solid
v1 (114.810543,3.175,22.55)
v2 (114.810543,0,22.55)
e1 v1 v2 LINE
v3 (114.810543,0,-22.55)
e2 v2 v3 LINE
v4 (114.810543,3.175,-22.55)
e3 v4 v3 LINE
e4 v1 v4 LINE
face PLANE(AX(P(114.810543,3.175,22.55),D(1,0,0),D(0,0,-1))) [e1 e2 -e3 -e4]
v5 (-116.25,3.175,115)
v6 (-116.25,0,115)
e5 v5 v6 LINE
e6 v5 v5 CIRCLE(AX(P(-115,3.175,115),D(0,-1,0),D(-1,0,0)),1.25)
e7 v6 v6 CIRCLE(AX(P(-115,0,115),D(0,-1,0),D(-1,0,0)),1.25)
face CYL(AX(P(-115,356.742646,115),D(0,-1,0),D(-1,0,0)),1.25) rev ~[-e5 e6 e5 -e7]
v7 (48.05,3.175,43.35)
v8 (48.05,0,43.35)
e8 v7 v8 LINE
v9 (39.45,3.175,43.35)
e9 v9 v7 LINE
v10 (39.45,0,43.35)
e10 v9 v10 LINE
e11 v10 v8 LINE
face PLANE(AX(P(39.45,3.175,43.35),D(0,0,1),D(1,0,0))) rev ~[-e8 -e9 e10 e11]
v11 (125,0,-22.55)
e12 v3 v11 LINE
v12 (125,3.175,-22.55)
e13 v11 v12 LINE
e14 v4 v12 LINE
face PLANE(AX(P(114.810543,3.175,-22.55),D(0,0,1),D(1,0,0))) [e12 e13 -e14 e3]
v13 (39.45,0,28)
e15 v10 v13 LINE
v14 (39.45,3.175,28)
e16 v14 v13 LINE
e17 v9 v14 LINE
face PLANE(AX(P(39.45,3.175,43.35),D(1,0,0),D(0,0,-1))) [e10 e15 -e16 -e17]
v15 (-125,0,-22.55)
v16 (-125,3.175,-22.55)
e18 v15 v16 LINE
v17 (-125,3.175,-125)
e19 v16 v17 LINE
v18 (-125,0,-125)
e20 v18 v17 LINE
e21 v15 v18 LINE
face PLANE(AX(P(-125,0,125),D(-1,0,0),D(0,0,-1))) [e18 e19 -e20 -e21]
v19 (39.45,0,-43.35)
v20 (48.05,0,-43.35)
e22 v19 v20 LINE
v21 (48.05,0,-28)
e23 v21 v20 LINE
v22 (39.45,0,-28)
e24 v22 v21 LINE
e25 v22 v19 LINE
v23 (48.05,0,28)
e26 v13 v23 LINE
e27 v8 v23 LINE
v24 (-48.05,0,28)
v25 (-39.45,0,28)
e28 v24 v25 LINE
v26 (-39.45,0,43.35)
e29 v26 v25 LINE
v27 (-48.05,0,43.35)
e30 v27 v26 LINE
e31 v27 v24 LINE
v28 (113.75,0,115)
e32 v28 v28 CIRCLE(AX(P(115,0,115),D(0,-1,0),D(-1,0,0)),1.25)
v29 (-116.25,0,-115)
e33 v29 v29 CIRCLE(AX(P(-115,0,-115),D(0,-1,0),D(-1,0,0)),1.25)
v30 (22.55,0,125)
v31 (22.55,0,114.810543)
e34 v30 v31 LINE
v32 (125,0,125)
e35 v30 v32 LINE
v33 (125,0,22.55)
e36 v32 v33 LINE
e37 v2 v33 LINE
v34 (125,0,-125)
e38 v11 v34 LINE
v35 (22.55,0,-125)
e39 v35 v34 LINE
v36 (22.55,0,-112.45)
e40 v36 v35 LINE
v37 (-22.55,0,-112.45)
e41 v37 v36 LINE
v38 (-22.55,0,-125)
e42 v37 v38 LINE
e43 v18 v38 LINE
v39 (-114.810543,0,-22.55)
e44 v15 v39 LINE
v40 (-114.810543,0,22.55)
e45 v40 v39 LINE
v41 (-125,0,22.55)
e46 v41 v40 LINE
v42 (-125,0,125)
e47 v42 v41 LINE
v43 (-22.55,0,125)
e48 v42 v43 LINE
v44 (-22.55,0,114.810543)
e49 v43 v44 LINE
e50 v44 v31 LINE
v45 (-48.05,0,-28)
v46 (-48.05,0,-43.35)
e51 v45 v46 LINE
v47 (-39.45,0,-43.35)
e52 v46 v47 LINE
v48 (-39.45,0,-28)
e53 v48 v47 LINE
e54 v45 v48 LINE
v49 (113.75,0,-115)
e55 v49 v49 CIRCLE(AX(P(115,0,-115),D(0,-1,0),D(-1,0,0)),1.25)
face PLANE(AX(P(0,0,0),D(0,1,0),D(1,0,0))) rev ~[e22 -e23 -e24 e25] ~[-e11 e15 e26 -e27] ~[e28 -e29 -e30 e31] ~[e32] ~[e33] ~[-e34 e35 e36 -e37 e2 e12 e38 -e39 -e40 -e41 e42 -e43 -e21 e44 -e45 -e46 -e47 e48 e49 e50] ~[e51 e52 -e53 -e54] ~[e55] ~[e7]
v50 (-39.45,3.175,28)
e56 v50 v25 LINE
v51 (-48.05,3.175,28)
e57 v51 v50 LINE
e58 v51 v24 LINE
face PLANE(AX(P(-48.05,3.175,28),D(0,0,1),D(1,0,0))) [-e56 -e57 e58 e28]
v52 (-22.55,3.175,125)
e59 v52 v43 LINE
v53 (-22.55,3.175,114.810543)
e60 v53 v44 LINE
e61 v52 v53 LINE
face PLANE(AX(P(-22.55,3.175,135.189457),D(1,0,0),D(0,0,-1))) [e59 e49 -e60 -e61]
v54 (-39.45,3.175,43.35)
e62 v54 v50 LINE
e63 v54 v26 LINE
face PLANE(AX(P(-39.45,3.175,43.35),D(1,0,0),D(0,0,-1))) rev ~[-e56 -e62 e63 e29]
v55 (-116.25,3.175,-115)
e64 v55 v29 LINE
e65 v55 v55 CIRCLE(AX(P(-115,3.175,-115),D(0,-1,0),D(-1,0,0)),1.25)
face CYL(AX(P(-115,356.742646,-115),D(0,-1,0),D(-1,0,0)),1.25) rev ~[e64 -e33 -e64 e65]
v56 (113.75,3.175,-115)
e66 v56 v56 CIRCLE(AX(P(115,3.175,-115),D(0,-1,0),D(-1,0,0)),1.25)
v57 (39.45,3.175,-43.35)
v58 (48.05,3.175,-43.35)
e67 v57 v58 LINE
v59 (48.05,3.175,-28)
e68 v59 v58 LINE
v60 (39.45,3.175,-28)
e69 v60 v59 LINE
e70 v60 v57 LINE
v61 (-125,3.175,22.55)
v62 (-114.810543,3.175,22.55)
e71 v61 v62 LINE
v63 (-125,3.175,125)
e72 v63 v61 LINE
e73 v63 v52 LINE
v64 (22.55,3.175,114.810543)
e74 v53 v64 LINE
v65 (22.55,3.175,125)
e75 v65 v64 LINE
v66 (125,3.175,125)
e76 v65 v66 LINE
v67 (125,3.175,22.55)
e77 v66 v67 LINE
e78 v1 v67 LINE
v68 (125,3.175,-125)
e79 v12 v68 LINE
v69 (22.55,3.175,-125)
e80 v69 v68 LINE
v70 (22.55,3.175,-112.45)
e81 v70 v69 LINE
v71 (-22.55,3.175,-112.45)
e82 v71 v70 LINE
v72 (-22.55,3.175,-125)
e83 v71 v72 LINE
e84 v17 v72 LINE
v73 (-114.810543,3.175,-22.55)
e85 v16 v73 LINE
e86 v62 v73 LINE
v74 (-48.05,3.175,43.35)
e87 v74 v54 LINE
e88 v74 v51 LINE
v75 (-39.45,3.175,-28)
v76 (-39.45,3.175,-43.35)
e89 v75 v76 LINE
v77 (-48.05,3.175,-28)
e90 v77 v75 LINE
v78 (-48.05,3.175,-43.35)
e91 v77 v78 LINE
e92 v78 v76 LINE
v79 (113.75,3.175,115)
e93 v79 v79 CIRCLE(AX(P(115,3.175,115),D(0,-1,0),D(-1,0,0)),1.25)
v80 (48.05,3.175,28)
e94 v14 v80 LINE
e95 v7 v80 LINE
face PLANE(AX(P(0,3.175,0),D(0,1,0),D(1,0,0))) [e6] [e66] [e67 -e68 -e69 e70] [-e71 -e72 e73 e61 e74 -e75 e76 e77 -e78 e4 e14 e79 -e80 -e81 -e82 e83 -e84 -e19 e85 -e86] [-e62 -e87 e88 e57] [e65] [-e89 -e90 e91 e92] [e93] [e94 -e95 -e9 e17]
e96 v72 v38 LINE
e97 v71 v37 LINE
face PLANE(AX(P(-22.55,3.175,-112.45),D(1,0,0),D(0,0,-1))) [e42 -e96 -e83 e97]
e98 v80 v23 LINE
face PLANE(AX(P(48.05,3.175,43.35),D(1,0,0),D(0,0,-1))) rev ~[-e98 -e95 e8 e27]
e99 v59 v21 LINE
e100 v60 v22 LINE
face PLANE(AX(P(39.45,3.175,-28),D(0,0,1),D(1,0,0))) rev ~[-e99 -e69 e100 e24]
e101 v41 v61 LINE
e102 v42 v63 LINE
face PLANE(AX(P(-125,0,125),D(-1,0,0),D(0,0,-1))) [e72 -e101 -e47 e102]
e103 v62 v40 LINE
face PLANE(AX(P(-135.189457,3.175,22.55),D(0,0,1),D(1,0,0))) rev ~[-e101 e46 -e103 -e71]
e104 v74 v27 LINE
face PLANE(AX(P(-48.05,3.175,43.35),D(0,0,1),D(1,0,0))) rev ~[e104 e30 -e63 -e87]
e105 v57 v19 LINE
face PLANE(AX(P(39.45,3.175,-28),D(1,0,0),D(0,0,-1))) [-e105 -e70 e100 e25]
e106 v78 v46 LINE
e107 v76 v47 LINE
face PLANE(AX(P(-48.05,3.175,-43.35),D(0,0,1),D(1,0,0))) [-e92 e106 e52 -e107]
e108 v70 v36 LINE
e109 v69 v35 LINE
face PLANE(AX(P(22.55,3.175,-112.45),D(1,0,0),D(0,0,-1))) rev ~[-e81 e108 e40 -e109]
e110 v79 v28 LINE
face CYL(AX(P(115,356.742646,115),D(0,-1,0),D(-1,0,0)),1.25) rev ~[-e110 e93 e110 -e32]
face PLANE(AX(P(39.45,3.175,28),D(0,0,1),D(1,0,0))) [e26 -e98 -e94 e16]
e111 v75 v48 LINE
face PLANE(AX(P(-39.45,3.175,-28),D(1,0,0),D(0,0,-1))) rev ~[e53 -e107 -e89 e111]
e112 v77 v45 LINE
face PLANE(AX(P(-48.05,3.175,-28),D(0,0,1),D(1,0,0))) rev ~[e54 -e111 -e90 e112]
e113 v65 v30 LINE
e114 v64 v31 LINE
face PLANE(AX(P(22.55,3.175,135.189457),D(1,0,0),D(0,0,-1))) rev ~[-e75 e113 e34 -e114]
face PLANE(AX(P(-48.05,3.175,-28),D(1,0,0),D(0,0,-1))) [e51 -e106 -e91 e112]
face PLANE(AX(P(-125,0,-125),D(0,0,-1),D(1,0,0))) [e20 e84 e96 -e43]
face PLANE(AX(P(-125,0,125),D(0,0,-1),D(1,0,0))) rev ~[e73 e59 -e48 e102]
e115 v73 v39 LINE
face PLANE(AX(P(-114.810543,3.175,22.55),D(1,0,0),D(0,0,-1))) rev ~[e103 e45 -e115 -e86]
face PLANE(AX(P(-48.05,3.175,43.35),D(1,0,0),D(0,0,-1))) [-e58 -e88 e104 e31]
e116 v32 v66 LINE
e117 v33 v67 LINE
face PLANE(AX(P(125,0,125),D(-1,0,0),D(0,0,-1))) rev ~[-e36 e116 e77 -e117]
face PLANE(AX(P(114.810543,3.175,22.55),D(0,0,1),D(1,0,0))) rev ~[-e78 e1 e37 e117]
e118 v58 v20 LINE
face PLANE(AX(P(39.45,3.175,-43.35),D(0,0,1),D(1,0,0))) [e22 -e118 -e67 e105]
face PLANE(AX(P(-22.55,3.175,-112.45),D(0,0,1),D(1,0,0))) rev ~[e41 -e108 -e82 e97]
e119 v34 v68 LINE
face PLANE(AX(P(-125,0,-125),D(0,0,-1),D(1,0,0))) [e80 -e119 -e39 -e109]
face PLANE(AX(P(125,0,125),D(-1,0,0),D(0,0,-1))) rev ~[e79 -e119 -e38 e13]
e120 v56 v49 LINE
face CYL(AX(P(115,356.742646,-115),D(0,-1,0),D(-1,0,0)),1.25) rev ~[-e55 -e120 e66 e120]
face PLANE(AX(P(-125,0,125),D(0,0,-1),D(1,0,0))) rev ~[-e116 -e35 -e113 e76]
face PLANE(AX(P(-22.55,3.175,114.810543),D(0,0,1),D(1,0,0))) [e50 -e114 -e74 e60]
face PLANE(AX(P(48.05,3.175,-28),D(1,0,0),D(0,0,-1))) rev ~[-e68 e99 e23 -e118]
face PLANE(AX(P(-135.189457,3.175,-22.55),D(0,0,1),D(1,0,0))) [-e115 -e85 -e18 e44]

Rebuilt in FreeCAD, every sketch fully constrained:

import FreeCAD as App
import Part
import Sketcher
from FreeCAD import Vector

doc = App.newDocument("Part")
body = doc.addObject("PartDesign::Body", "Body")

# Sketch on XZ plane
sketch1 = doc.addObject("Sketcher::SketchObject", "Sketch")
body.addObject(sketch1)
sketch1.AttachmentSupport = (doc.XZ_Plane, [""])
sketch1.MapMode = "FlatFace"
sketch1.addGeometry(Part.LineSegment(Vector(-125, -125, 0), Vector(-125, 125, 0)), False)
sketch1.addGeometry(Part.LineSegment(Vector(-125, 125, 0), Vector(125, 125, 0)), False)
sketch1.addGeometry(Part.LineSegment(Vector(125, 125, 0), Vector(125, -125, 0)), False)
sketch1.addGeometry(Part.LineSegment(Vector(125, -125, 0), Vector(-125, -125, 0)), False)
sketch1.addConstraint(Sketcher.Constraint("Coincident", 0, 2, 1, 1))
sketch1.addConstraint(Sketcher.Constraint("Coincident", 1, 2, 2, 1))
sketch1.addConstraint(Sketcher.Constraint("Coincident", 2, 2, 3, 1))
sketch1.addConstraint(Sketcher.Constraint("Coincident", 3, 2, 0, 1))
sketch1.addConstraint(Sketcher.Constraint("Vertical", 0))
sketch1.addConstraint(Sketcher.Constraint("Horizontal", 1))
sketch1.addConstraint(Sketcher.Constraint("Vertical", 2))
sketch1.addConstraint(Sketcher.Constraint("Horizontal", 3))
sketch1.addConstraint(Sketcher.Constraint("Symmetric", 0, 2, 2, 2, -1, 1))
sketch1.addConstraint(Sketcher.Constraint("Equal", 3, 0))
sketch1.addConstraint(Sketcher.Constraint("DistanceX", 1, 1, 1, 2, 250.0))
pad1 = doc.addObject("PartDesign::Pad", "Pad")
body.addObject(pad1)
pad1.Profile = sketch1
pad1.Length = 3.175
pad1.Reversed = True

# Sketch on XZ plane
sketch2 = doc.addObject("Sketcher::SketchObject", "Sketch001")
body.addObject(sketch2)
sketch2.AttachmentSupport = (doc.XZ_Plane, [""])
sketch2.MapMode = "FlatFace"
sketch2.AttachmentOffset = App.Placement(Vector(0, 0, -3.175), App.Rotation())
sketch2.addGeometry(Part.LineSegment(Vector(-48, -43, 0), Vector(-48, -28, 0)), False)
sketch2.addGeometry(Part.LineSegment(Vector(-48, -28, 0), Vector(-39, -28, 0)), False)
sketch2.addGeometry(Part.LineSegment(Vector(-39, -28, 0), Vector(-39, -43, 0)), False)
sketch2.addGeometry(Part.LineSegment(Vector(-39, -43, 0), Vector(-48, -43, 0)), False)
sketch2.addGeometry(Part.LineSegment(Vector(-48, 28, 0), Vector(-48, 43, 0)), False)
sketch2.addGeometry(Part.LineSegment(Vector(-48, 43, 0), Vector(-39, 43, 0)), False)
sketch2.addGeometry(Part.LineSegment(Vector(-39, 43, 0), Vector(-39, 28, 0)), False)
sketch2.addGeometry(Part.LineSegment(Vector(-39, 28, 0), Vector(-48, 28, 0)), False)
sketch2.addGeometry(Part.LineSegment(Vector(39, 28, 0), Vector(39, 43, 0)), False)
sketch2.addGeometry(Part.LineSegment(Vector(39, 43, 0), Vector(48, 43, 0)), False)
sketch2.addGeometry(Part.LineSegment(Vector(48, 43, 0), Vector(48, 28, 0)), False)
sketch2.addGeometry(Part.LineSegment(Vector(48, 28, 0), Vector(39, 28, 0)), False)
sketch2.addGeometry(Part.LineSegment(Vector(39, -43, 0), Vector(39, -28, 0)), False)
sketch2.addGeometry(Part.LineSegment(Vector(39, -28, 0), Vector(48, -28, 0)), False)
sketch2.addGeometry(Part.LineSegment(Vector(48, -28, 0), Vector(48, -43, 0)), False)
sketch2.addGeometry(Part.LineSegment(Vector(48, -43, 0), Vector(39, -43, 0)), False)
sketch2.addConstraint(Sketcher.Constraint("Coincident", 0, 2, 1, 1))
sketch2.addConstraint(Sketcher.Constraint("Coincident", 1, 2, 2, 1))
sketch2.addConstraint(Sketcher.Constraint("Coincident", 2, 2, 3, 1))
sketch2.addConstraint(Sketcher.Constraint("Coincident", 3, 2, 0, 1))
sketch2.addConstraint(Sketcher.Constraint("Coincident", 4, 2, 5, 1))
sketch2.addConstraint(Sketcher.Constraint("Coincident", 5, 2, 6, 1))
sketch2.addConstraint(Sketcher.Constraint("Coincident", 6, 2, 7, 1))
sketch2.addConstraint(Sketcher.Constraint("Coincident", 7, 2, 4, 1))
sketch2.addConstraint(Sketcher.Constraint("Coincident", 8, 2, 9, 1))
sketch2.addConstraint(Sketcher.Constraint("Coincident", 9, 2, 10, 1))
sketch2.addConstraint(Sketcher.Constraint("Coincident", 10, 2, 11, 1))
sketch2.addConstraint(Sketcher.Constraint("Coincident", 11, 2, 8, 1))
sketch2.addConstraint(Sketcher.Constraint("Coincident", 12, 2, 13, 1))
sketch2.addConstraint(Sketcher.Constraint("Coincident", 13, 2, 14, 1))
sketch2.addConstraint(Sketcher.Constraint("Coincident", 14, 2, 15, 1))
sketch2.addConstraint(Sketcher.Constraint("Coincident", 15, 2, 12, 1))
sketch2.addConstraint(Sketcher.Constraint("Vertical", 0))
sketch2.addConstraint(Sketcher.Constraint("Horizontal", 1))
sketch2.addConstraint(Sketcher.Constraint("Vertical", 2))
sketch2.addConstraint(Sketcher.Constraint("Horizontal", 3))
sketch2.addConstraint(Sketcher.Constraint("Vertical", 4))
sketch2.addConstraint(Sketcher.Constraint("Horizontal", 5))
sketch2.addConstraint(Sketcher.Constraint("Vertical", 6))
sketch2.addConstraint(Sketcher.Constraint("Horizontal", 7))
sketch2.addConstraint(Sketcher.Constraint("Vertical", 8))
sketch2.addConstraint(Sketcher.Constraint("Horizontal", 9))
sketch2.addConstraint(Sketcher.Constraint("Vertical", 10))
sketch2.addConstraint(Sketcher.Constraint("Horizontal", 11))
sketch2.addConstraint(Sketcher.Constraint("Vertical", 12))
sketch2.addConstraint(Sketcher.Constraint("Horizontal", 13))
sketch2.addConstraint(Sketcher.Constraint("Vertical", 14))
sketch2.addConstraint(Sketcher.Constraint("Horizontal", 15))
sketch2.addConstraint(Sketcher.Constraint("Symmetric", 2, 2, 8, 2, -1, 1))
sketch2.addConstraint(Sketcher.Constraint("Symmetric", 0, 2, 10, 2, -1, 1))
sketch2.addConstraint(Sketcher.Constraint("Symmetric", 6, 2, 12, 2, -1, 1))
sketch2.addConstraint(Sketcher.Constraint("Symmetric", 4, 2, 14, 2, -1, 1))
sketch2.addConstraint(Sketcher.Constraint("Symmetric", 5, 2, 8, 2, -2))
sketch2.addConstraint(Sketcher.Constraint("Symmetric", 7, 2, 10, 2, -2))
sketch2.addConstraint(Sketcher.Constraint("DistanceX", 1, 1, 1, 2, 8.6))
sketch2.addConstraint(Sketcher.Constraint("DistanceY", 0, 2, -1, 1, 28.0))
sketch2.addConstraint(Sketcher.Constraint("DistanceY", 0, 1, 0, 2, 15.35))
sketch2.addConstraint(Sketcher.Constraint("DistanceX", 5, 2, 8, 2, 78.9))
pocket1 = doc.addObject("PartDesign::Pocket", "Pocket")
body.addObject(pocket1)
pocket1.Profile = sketch2
pocket1.Length = 10
pocket1.Reversed = True

# Sketch on XZ plane
sketch3 = doc.addObject("Sketcher::SketchObject", "Sketch002")
body.addObject(sketch3)
sketch3.AttachmentSupport = (doc.XZ_Plane, [""])
sketch3.MapMode = "FlatFace"
sketch3.AttachmentOffset = App.Placement(Vector(0, 0, -3.175), App.Rotation())
sketch3.addGeometry(Part.LineSegment(Vector(-23, -138, 0), Vector(-23, -112, 0)), False)
sketch3.addGeometry(Part.LineSegment(Vector(-23, -112, 0), Vector(23, -112, 0)), False)
sketch3.addGeometry(Part.LineSegment(Vector(23, -112, 0), Vector(23, -138, 0)), False)
sketch3.addGeometry(Part.LineSegment(Vector(23, -138, 0), Vector(-23, -138, 0)), False)
sketch3.addGeometry(Part.LineSegment(Vector(-135, -23, 0), Vector(-135, 23, 0)), False)
sketch3.addGeometry(Part.LineSegment(Vector(-135, 23, 0), Vector(-115, 23, 0)), False)
sketch3.addGeometry(Part.LineSegment(Vector(-115, 23, 0), Vector(-115, -23, 0)), False)
sketch3.addGeometry(Part.LineSegment(Vector(-115, -23, 0), Vector(-135, -23, 0)), False)
sketch3.addGeometry(Part.LineSegment(Vector(115, -23, 0), Vector(115, 23, 0)), False)
sketch3.addGeometry(Part.LineSegment(Vector(115, 23, 0), Vector(135, 23, 0)), False)
sketch3.addGeometry(Part.LineSegment(Vector(135, 23, 0), Vector(135, -23, 0)), False)
sketch3.addGeometry(Part.LineSegment(Vector(135, -23, 0), Vector(115, -23, 0)), False)
sketch3.addGeometry(Part.LineSegment(Vector(-23, 115, 0), Vector(-23, 135, 0)), False)
sketch3.addGeometry(Part.LineSegment(Vector(-23, 135, 0), Vector(23, 135, 0)), False)
sketch3.addGeometry(Part.LineSegment(Vector(23, 135, 0), Vector(23, 115, 0)), False)
sketch3.addGeometry(Part.LineSegment(Vector(23, 115, 0), Vector(-23, 115, 0)), False)
sketch3.addConstraint(Sketcher.Constraint("Coincident", 0, 2, 1, 1))
sketch3.addConstraint(Sketcher.Constraint("Coincident", 1, 2, 2, 1))
sketch3.addConstraint(Sketcher.Constraint("Coincident", 2, 2, 3, 1))
sketch3.addConstraint(Sketcher.Constraint("Coincident", 3, 2, 0, 1))
sketch3.addConstraint(Sketcher.Constraint("Coincident", 4, 2, 5, 1))
sketch3.addConstraint(Sketcher.Constraint("Coincident", 5, 2, 6, 1))
sketch3.addConstraint(Sketcher.Constraint("Coincident", 6, 2, 7, 1))
sketch3.addConstraint(Sketcher.Constraint("Coincident", 7, 2, 4, 1))
sketch3.addConstraint(Sketcher.Constraint("Coincident", 8, 2, 9, 1))
sketch3.addConstraint(Sketcher.Constraint("Coincident", 9, 2, 10, 1))
sketch3.addConstraint(Sketcher.Constraint("Coincident", 10, 2, 11, 1))
sketch3.addConstraint(Sketcher.Constraint("Coincident", 11, 2, 8, 1))
sketch3.addConstraint(Sketcher.Constraint("Coincident", 12, 2, 13, 1))
sketch3.addConstraint(Sketcher.Constraint("Coincident", 13, 2, 14, 1))
sketch3.addConstraint(Sketcher.Constraint("Coincident", 14, 2, 15, 1))
sketch3.addConstraint(Sketcher.Constraint("Coincident", 15, 2, 12, 1))
sketch3.addConstraint(Sketcher.Constraint("Vertical", 0))
sketch3.addConstraint(Sketcher.Constraint("Horizontal", 1))
sketch3.addConstraint(Sketcher.Constraint("Vertical", 2))
sketch3.addConstraint(Sketcher.Constraint("Horizontal", 3))
sketch3.addConstraint(Sketcher.Constraint("Vertical", 4))
sketch3.addConstraint(Sketcher.Constraint("Horizontal", 5))
sketch3.addConstraint(Sketcher.Constraint("Vertical", 6))
sketch3.addConstraint(Sketcher.Constraint("Horizontal", 7))
sketch3.addConstraint(Sketcher.Constraint("Vertical", 8))
sketch3.addConstraint(Sketcher.Constraint("Horizontal", 9))
sketch3.addConstraint(Sketcher.Constraint("Vertical", 10))
sketch3.addConstraint(Sketcher.Constraint("Horizontal", 11))
sketch3.addConstraint(Sketcher.Constraint("Vertical", 12))
sketch3.addConstraint(Sketcher.Constraint("Horizontal", 13))
sketch3.addConstraint(Sketcher.Constraint("Vertical", 14))
sketch3.addConstraint(Sketcher.Constraint("Horizontal", 15))
sketch3.addConstraint(Sketcher.Constraint("Symmetric", 6, 2, 8, 2, -1, 1))
sketch3.addConstraint(Sketcher.Constraint("Symmetric", 4, 2, 10, 2, -1, 1))
sketch3.addConstraint(Sketcher.Constraint("Horizontal", 5, 2, 8, 2))
sketch3.addConstraint(Sketcher.Constraint("Vertical", 3, 2, 12, 2))
sketch3.addConstraint(Sketcher.Constraint("Vertical", 2, 2, 13, 2))
sketch3.addConstraint(Sketcher.Constraint("Equal", 15, 4))
sketch3.addConstraint(Sketcher.Constraint("Equal", 11, 12))
sketch3.addConstraint(Sketcher.Constraint("DistanceX", 1, 1, 1, 2, 45.1))
sketch3.addConstraint(Sketcher.Constraint("DistanceY", 0, 1, 0, 2, 25.1))
sketch3.addConstraint(Sketcher.Constraint("DistanceY", 0, 2, 4, 2, 135.0))
sketch3.addConstraint(Sketcher.Constraint("DistanceX", 0, 2, -1, 1, 22.55))
sketch3.addConstraint(Sketcher.Constraint("DistanceX", 5, 1, 5, 2, 20.378913))
sketch3.addConstraint(Sketcher.Constraint("DistanceX", 4, 2, -1, 1, 135.189457))
sketch3.addConstraint(Sketcher.Constraint("DistanceY", -1, 1, 12, 2, 135.189457))
pocket2 = doc.addObject("PartDesign::Pocket", "Pocket001")
body.addObject(pocket2)
pocket2.Profile = sketch3
pocket2.Length = 10
pocket2.Reversed = True

# Sketch on XZ plane
sketch4 = doc.addObject("Sketcher::SketchObject", "Sketch003")
body.addObject(sketch4)
sketch4.AttachmentSupport = (doc.XZ_Plane, [""])
sketch4.MapMode = "FlatFace"
sketch4.AttachmentOffset = App.Placement(Vector(0, 0, -3.175), App.Rotation())
sketch4.addGeometry(Part.Circle(Vector(-115, -115, 0), Vector(0, 0, 1), 1.2), False)
sketch4.addConstraint(Sketcher.Constraint("Diameter", 0, 2.5))
sketch4.addConstraint(Sketcher.Constraint("DistanceX", 0, 3, -1, 1, 115.0))
sketch4.addConstraint(Sketcher.Constraint("DistanceY", 0, 3, -1, 1, 115.0))
doc.recompute()
hole = doc.addObject("PartDesign::Hole", "Hole")
body.addObject(hole)
hole.Profile = sketch4
hole.ThreadType = "None"
hole.Diameter = 2.5
hole.DepthType = "ThroughAll"
hole.Reversed = True

# Sketch on XZ plane
sketch5 = doc.addObject("Sketcher::SketchObject", "Sketch004")
body.addObject(sketch5)
sketch5.AttachmentSupport = (doc.XZ_Plane, [""])
sketch5.MapMode = "FlatFace"
sketch5.AttachmentOffset = App.Placement(Vector(0, 0, -3.175), App.Rotation())
sketch5.addGeometry(Part.Circle(Vector(115, -115, 0), Vector(0, 0, 1), 1.2), False)
sketch5.addGeometry(Part.Circle(Vector(115, 115, 0), Vector(0, 0, 1), 1.2), False)
sketch5.addGeometry(Part.Circle(Vector(-115, 115, 0), Vector(0, 0, 1), 1.2), False)
sketch5.addConstraint(Sketcher.Constraint("Equal", 0, 1))
sketch5.addConstraint(Sketcher.Constraint("Equal", 1, 2))
sketch5.addConstraint(Sketcher.Constraint("Symmetric", 0, 3, 2, 3, -1, 1))
sketch5.addConstraint(Sketcher.Constraint("Symmetric", 1, 3, 2, 3, -2))
sketch5.addConstraint(Sketcher.Constraint("Diameter", 0, 2.5))
sketch5.addConstraint(Sketcher.Constraint("DistanceX", -1, 1, 0, 3, 115.0))
sketch5.addConstraint(Sketcher.Constraint("DistanceY", 0, 3, -1, 1, 115.0))
doc.recompute()
hole2 = doc.addObject("PartDesign::Hole", "Hole001")
body.addObject(hole2)
hole2.Profile = sketch5
hole2.ThreadType = "None"
hole2.Diameter = 2.5
hole2.DepthType = "ThroughAll"
hole2.Reversed = True

doc.recompute()
